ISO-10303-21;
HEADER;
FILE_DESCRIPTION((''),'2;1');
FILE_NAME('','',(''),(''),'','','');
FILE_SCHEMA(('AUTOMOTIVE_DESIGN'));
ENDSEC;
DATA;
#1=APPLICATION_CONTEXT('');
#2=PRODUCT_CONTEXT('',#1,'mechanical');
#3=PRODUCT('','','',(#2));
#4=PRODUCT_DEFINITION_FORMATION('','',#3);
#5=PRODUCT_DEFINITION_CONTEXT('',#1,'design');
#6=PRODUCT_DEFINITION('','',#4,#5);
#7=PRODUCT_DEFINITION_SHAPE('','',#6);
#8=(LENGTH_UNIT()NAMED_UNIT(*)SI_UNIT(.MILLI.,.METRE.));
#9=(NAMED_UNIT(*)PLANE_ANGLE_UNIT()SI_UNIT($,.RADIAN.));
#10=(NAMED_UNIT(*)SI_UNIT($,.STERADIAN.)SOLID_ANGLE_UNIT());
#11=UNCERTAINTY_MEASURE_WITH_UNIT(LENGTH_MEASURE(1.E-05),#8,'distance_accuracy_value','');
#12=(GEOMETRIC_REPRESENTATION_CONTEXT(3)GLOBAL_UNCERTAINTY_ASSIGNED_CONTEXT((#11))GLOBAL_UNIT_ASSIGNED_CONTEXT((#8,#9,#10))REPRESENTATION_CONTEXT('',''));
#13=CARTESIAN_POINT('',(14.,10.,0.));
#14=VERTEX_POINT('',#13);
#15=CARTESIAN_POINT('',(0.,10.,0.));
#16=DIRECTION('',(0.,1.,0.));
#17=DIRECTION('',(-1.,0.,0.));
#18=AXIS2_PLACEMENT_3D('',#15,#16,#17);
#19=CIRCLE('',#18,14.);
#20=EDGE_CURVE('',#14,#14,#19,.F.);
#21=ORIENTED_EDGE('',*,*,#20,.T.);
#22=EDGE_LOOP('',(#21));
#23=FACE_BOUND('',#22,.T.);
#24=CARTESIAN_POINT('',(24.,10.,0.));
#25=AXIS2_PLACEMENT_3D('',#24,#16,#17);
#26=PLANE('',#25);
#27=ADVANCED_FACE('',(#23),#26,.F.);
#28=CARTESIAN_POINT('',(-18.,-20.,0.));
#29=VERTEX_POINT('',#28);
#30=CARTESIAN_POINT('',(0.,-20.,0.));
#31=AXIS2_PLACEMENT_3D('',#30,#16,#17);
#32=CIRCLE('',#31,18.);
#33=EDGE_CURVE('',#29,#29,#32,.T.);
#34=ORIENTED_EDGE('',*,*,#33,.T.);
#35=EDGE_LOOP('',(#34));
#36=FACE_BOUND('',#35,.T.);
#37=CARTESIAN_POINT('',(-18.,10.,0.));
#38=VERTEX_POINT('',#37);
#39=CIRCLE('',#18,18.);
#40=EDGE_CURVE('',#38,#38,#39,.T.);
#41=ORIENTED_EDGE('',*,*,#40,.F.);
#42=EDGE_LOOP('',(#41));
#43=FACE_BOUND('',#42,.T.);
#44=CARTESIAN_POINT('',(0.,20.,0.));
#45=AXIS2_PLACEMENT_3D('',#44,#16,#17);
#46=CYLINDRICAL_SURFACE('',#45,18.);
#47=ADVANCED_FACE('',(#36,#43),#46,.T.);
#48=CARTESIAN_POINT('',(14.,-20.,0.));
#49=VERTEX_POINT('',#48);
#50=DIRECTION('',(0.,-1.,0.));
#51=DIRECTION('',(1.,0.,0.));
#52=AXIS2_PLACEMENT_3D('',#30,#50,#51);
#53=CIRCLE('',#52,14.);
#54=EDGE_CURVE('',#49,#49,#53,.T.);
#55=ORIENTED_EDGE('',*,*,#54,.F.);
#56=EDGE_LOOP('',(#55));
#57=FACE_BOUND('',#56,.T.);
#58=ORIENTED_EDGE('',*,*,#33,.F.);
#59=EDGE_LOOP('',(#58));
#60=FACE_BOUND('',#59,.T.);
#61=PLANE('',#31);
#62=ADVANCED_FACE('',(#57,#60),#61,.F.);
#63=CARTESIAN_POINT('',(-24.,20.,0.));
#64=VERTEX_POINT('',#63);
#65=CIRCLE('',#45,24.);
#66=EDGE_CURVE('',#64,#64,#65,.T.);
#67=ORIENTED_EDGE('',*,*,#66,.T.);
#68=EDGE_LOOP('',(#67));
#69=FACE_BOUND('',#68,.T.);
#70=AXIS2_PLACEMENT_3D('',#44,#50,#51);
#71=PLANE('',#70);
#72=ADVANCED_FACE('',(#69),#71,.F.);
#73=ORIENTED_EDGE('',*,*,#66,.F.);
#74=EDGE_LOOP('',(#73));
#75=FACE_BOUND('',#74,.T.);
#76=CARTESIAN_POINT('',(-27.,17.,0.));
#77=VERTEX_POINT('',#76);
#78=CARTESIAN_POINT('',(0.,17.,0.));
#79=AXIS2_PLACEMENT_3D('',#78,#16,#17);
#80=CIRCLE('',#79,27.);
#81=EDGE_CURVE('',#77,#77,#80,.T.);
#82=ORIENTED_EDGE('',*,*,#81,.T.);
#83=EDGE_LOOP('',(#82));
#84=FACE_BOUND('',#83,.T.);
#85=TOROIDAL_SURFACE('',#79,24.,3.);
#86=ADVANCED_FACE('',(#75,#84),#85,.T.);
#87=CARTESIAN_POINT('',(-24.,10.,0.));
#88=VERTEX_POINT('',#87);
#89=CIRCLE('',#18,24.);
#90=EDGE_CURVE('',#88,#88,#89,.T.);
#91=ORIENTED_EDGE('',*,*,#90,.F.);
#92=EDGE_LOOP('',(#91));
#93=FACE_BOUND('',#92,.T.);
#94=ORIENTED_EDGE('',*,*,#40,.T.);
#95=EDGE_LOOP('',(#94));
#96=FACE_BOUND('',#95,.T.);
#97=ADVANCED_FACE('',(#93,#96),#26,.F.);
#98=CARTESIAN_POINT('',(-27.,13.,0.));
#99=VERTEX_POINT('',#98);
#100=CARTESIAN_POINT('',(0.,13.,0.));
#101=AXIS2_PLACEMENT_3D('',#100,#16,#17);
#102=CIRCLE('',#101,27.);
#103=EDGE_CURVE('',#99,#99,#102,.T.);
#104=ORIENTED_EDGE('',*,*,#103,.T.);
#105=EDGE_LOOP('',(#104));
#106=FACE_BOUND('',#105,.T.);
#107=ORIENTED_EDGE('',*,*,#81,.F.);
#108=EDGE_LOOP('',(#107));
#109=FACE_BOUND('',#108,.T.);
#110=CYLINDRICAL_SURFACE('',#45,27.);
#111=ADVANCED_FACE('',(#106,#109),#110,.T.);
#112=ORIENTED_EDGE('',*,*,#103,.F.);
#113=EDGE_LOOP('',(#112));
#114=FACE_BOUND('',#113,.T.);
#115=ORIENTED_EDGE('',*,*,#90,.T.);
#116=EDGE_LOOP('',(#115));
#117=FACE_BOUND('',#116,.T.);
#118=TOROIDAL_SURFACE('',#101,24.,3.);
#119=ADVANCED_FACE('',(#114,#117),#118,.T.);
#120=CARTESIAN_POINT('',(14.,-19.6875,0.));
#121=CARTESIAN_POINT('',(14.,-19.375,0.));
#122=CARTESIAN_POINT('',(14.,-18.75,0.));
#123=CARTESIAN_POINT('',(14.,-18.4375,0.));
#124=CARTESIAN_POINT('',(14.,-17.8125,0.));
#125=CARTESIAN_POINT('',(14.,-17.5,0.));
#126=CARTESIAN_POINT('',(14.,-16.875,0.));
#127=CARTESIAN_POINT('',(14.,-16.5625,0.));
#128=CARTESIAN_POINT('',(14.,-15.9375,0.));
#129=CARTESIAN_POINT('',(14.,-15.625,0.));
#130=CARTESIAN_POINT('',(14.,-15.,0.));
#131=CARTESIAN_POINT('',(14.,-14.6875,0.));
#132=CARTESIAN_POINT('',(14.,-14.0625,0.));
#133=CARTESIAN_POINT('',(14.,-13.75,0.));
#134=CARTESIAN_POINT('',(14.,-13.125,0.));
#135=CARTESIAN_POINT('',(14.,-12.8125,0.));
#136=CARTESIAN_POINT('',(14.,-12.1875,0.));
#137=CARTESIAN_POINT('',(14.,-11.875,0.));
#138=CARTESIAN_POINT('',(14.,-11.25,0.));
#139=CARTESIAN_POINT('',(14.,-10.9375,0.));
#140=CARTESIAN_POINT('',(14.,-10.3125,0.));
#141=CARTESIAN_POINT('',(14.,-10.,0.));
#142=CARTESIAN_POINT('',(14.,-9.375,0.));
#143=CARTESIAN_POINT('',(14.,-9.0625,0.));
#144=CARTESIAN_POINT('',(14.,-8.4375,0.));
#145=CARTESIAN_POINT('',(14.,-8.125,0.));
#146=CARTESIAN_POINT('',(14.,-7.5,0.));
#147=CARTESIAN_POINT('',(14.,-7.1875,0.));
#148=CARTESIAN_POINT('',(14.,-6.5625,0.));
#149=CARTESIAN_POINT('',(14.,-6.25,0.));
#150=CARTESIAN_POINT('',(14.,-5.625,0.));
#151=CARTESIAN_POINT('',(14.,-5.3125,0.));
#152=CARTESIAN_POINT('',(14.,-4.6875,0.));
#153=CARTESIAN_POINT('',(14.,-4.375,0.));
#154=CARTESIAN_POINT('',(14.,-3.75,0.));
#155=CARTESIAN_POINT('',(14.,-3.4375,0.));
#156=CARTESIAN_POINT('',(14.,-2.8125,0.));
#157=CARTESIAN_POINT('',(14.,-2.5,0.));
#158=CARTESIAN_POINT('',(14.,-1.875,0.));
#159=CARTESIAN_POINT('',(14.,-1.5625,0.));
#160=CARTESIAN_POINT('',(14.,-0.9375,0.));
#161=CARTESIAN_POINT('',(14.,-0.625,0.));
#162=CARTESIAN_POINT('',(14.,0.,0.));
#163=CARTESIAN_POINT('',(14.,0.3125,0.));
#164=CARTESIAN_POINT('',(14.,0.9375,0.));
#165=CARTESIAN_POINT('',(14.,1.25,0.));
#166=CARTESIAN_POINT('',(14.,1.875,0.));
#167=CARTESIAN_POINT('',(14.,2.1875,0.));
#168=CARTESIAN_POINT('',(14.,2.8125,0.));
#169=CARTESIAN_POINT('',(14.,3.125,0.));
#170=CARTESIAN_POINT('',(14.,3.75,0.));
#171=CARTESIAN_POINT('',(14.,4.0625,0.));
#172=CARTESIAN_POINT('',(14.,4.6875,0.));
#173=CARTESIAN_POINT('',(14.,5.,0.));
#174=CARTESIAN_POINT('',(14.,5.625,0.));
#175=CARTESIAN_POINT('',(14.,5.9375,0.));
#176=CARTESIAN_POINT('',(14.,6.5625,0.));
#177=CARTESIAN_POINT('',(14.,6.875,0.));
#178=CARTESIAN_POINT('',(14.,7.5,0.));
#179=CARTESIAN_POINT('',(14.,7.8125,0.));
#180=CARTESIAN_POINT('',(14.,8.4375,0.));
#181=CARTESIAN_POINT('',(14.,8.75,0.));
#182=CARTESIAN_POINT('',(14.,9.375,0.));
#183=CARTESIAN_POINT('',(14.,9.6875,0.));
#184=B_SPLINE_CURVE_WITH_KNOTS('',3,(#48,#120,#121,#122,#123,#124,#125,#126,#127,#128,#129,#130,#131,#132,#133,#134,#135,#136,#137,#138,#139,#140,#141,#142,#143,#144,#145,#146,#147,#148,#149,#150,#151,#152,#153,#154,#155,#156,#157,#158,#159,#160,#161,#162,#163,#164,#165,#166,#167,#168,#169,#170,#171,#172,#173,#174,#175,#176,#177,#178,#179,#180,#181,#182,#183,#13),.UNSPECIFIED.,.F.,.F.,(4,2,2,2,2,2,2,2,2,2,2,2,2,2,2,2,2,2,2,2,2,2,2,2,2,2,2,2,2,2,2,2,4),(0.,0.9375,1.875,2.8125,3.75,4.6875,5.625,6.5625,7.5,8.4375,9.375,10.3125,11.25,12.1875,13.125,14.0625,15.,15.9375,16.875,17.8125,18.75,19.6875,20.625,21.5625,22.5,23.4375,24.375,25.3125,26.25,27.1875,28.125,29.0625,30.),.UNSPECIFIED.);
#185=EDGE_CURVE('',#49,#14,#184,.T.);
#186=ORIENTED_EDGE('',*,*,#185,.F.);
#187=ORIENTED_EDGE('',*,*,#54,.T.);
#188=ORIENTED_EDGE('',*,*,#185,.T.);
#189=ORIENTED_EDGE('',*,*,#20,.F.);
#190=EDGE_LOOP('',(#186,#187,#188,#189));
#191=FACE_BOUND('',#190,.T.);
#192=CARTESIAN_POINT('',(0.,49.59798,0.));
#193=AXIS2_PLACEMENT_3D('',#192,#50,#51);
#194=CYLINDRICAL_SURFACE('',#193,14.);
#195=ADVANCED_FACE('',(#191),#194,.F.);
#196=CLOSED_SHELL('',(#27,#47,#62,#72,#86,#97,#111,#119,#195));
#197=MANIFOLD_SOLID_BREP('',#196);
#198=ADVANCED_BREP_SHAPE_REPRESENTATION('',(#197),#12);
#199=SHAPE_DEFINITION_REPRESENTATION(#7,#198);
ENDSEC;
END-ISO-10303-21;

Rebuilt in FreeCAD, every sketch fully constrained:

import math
import FreeCAD as App
import Part
import Sketcher
from FreeCAD import Vector

doc = App.newDocument("Part")
body = doc.addObject("PartDesign::Body", "Body")

sketch1 = body.newObject("Sketcher::SketchObject", "Sketch")
sketch1.AttachmentSupport = (doc.getObject("XY_Plane"), [""])
sketch1.MapMode = "FlatFace"
sketch1.addGeometry(Part.LineSegment(Vector(0, -20, 0), Vector(18, -20, 0)), False)
sketch1.addGeometry(Part.LineSegment(Vector(18, -20, 0), Vector(18, 10, 0)), False)
sketch1.addGeometry(Part.LineSegment(Vector(18, 10, 0), Vector(24, 10, 0)), False)
sketch1.addGeometry(Part.ArcOfCircle(Part.Circle(Vector(24, 13, 0), Vector(0, 0, 1), 3), math.radians(-90), math.radians(0)), False)
sketch1.addGeometry(Part.LineSegment(Vector(27, 13, 0), Vector(27, 17, 0)), False)
sketch1.addGeometry(Part.ArcOfCircle(Part.Circle(Vector(24, 17, 0), Vector(0, 0, 1), 3), math.radians(0), math.radians(90)), False)
sketch1.addGeometry(Part.LineSegment(Vector(24, 20, 0), Vector(0, 20, 0)), False)
sketch1.addGeometry(Part.LineSegment(Vector(0, 20, 0), Vector(0, -20, 0)), False)
sketch1.addConstraint(Sketcher.Constraint("Coincident", 0, 2, 1, 1))
sketch1.addConstraint(Sketcher.Constraint("Coincident", 1, 2, 2, 1))
sketch1.addConstraint(Sketcher.Constraint("Tangent", 2, 2, 3, 1))
sketch1.addConstraint(Sketcher.Constraint("Tangent", 3, 2, 4, 1))
sketch1.addConstraint(Sketcher.Constraint("Tangent", 4, 2, 5, 1))
sketch1.addConstraint(Sketcher.Constraint("Tangent", 5, 2, 6, 1))
sketch1.addConstraint(Sketcher.Constraint("Coincident", 6, 2, 7, 1))
sketch1.addConstraint(Sketcher.Constraint("Coincident", 7, 2, 0, 1))
sketch1.addConstraint(Sketcher.Constraint("Horizontal", 0))
sketch1.addConstraint(Sketcher.Constraint("Vertical", 1))
sketch1.addConstraint(Sketcher.Constraint("Horizontal", 2))
sketch1.addConstraint(Sketcher.Constraint("Vertical", 4))
sketch1.addConstraint(Sketcher.Constraint("Horizontal", 6))
sketch1.addConstraint(Sketcher.Constraint("Vertical", 7))
sketch1.addConstraint(Sketcher.Constraint("Equal", 3, 5))
sketch1.addConstraint(Sketcher.Constraint("Symmetric", 6, 2, 7, 2, -1, 1))
sketch1.addConstraint(Sketcher.Constraint("Radius", 3, 3.0))
sketch1.addConstraint(Sketcher.Constraint("DistanceX", 0, 1, 0, 2, 18.0))
sketch1.addConstraint(Sketcher.Constraint("DistanceX", 2, 1, 2, 2, 6.0))
sketch1.addConstraint(Sketcher.Constraint("DistanceY", 1, 1, 1, 2, 30.0))
sketch1.addConstraint(Sketcher.Constraint("DistanceY", 4, 1, 4, 2, 4.0))
revolution = body.newObject("PartDesign::Revolution", "Revolution")
revolution.Profile = sketch1
revolution.ReferenceAxis = (sketch1, ["V_Axis"])
revolution.Angle = 360

sketch2 = body.newObject("Sketcher::SketchObject", "Sketch001")
sketch2.AttachmentSupport = (doc.getObject("XZ_Plane"), [""])
sketch2.MapMode = "FlatFace"
sketch2.AttachmentOffset = App.Placement(Vector(0, 0, 20), App.Rotation())
sketch2.addGeometry(Part.Circle(Vector(0, 0, 0), Vector(0, 0, 1), 14), False)
sketch2.addConstraint(Sketcher.Constraint("Coincident", 0, 3, -1, 1))
sketch2.addConstraint(Sketcher.Constraint("Diameter", 0, 28.0))
pocket1 = body.newObject("PartDesign::Pocket", "Pocket")
pocket1.Profile = sketch2
pocket1.Length = 30

doc.recompute()
